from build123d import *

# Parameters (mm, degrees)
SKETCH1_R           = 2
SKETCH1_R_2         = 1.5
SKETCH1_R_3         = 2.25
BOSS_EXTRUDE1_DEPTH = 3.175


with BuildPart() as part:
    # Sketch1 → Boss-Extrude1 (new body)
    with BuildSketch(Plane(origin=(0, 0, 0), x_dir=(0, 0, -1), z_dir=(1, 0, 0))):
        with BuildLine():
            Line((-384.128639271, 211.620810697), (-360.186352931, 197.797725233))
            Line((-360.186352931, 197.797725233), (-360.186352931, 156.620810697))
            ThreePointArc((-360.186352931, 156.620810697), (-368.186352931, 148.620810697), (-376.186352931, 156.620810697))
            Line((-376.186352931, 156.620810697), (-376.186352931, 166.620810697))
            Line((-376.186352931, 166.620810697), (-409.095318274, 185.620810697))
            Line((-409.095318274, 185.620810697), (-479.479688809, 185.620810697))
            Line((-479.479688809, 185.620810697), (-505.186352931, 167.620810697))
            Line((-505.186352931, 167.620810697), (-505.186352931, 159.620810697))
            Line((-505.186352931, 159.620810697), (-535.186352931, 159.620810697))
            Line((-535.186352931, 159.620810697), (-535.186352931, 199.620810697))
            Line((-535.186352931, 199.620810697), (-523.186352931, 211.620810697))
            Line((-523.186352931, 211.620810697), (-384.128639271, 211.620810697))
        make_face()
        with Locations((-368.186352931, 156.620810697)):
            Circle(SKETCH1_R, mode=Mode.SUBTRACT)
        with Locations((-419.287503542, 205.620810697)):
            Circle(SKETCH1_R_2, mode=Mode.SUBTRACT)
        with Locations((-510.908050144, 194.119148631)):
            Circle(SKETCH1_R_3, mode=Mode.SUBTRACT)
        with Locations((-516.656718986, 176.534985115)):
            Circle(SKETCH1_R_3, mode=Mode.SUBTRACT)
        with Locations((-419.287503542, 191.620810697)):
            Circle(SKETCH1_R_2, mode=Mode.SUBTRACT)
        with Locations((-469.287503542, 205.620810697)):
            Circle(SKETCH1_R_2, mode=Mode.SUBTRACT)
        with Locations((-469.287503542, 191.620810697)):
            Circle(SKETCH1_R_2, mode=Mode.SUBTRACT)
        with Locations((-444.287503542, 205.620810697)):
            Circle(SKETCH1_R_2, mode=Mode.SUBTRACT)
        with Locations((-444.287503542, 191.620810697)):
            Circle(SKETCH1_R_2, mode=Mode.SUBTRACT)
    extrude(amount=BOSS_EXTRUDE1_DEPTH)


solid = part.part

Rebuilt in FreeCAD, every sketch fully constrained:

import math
import FreeCAD as App
import Part
import Sketcher

V = App.Vector
Q = App.Units.Quantity

doc = App.newDocument("Part")
params = doc.addObject("Spreadsheet::Sheet", "Params")
for row, (alias, value) in enumerate([
    ("sketch1_diameter", "4 mm"),
    ("sketch1_diameter2", "3 mm"),
    ("sketch1_radius", "8 mm"),
    ("sketch1_diameter3", "4.5 mm"),
    ("sketch1_width", "40 mm"),
    ("pad1_length", "3.175 mm"),
], start=1):
    params.set(f"A{row}", alias)
    params.set(f"B{row}", "=" + value)
    params.setAlias(f"B{row}", alias)

body = doc.addObject("PartDesign::Body", "Body")

sketch1 = body.newObject("Sketcher::SketchObject", "Sketch")
sketch1.AttachmentSupport = (doc.getObject("YZ_Plane"), [""])
sketch1.MapMode = "FlatFace"
sketch1.addGeometry([
    Part.LineSegment(V(197.797725, 360.186353, 0), V(211.620811, 384.128639, 0)),
    Part.LineSegment(V(211.620811, 384.128639, 0), V(211.620811, 523.186353, 0)),
    Part.LineSegment(V(211.620811, 523.186353, 0), V(199.620811, 535.186353, 0)),
    Part.LineSegment(V(199.620811, 535.186353, 0), V(159.620811, 535.186353, 0)),
    Part.LineSegment(V(159.620811, 535.186353, 0), V(159.620811, 505.186353, 0)),
    Part.LineSegment(V(159.620811, 505.186353, 0), V(167.620811, 505.186353, 0)),
    Part.LineSegment(V(167.620811, 505.186353, 0), V(185.620811, 479.479689, 0)),
    Part.LineSegment(V(185.620811, 479.479689, 0), V(185.620811, 409.095318, 0)),
    Part.LineSegment(V(185.620811, 409.095318, 0), V(166.620811, 376.186353, 0)),
    Part.LineSegment(V(166.620811, 376.186353, 0), V(156.620811, 376.186353, 0)),
    Part.ArcOfCircle(Part.Circle(V(156.620811, 368.186353, 0), V(0, 0, 1), 8), math.radians(90), math.radians(270)),
    Part.LineSegment(V(156.620811, 360.186353, 0), V(197.797725, 360.186353, 0)),
    Part.Circle(V(156.620811, 368.186353, 0), V(0, 0, 1), 2),
    Part.Circle(V(176.534985, 516.656719, 0), V(0, 0, 1), 2.25),
    Part.Circle(V(191.620811, 419.287504, 0), V(0, 0, 1), 1.5),
    Part.Circle(V(205.620811, 419.287504, 0), V(0, 0, 1), 1.5),
    Part.Circle(V(191.620811, 444.287504, 0), V(0, 0, 1), 1.5),
    Part.Circle(V(191.620811, 469.287504, 0), V(0, 0, 1), 1.5),
    Part.Circle(V(205.620811, 444.287504, 0), V(0, 0, 1), 1.5),
    Part.Circle(V(205.620811, 469.287504, 0), V(0, 0, 1), 1.5),
    Part.Circle(V(194.119149, 510.90805, 0), V(0, 0, 1), 2.25),
], False)
sketch1.addConstraint([
    Sketcher.Constraint("Coincident", 0, 2, 1, 1),
    Sketcher.Constraint("Coincident", 1, 2, 2, 1),
    Sketcher.Constraint("Coincident", 2, 2, 3, 1),
    Sketcher.Constraint("Coincident", 3, 2, 4, 1),
    Sketcher.Constraint("Coincident", 4, 2, 5, 1),
    Sketcher.Constraint("Coincident", 5, 2, 6, 1),
    Sketcher.Constraint("Coincident", 6, 2, 7, 1),
    Sketcher.Constraint("Coincident", 7, 2, 8, 1),
    Sketcher.Constraint("Coincident", 8, 2, 9, 1),
    Sketcher.Constraint("Tangent", 9, 2, 10, 1),
    Sketcher.Constraint("Tangent", 10, 2, 11, 1),
    Sketcher.Constraint("Coincident", 11, 2, 0, 1),
    Sketcher.Constraint("Vertical", 1),
    Sketcher.Constraint("Horizontal", 3),
    Sketcher.Constraint("Vertical", 4),
    Sketcher.Constraint("Horizontal", 5),
    Sketcher.Constraint("Vertical", 7),
    Sketcher.Constraint("Horizontal", 9),
    Sketcher.Constraint("Horizontal", 11),
    Sketcher.Constraint("Coincident", 12, 3, 10, 3),
    Sketcher.Constraint("Equal", 14, 15),
    Sketcher.Constraint("Equal", 15, 16),
    Sketcher.Constraint("Equal", 16, 17),
    Sketcher.Constraint("Equal", 17, 18),
    Sketcher.Constraint("Equal", 18, 19),
    Sketcher.Constraint("Equal", 13, 20),
    Sketcher.Constraint("Parallel", 0, 8),
    Sketcher.Constraint("Horizontal", 14, 3, 15, 3),
    Sketcher.Constraint("Horizontal", 16, 3, 18, 3),
    Sketcher.Constraint("Horizontal", 17, 3, 19, 3),
    Sketcher.Constraint("Vertical", 14, 3, 16, 3),
    Sketcher.Constraint("Vertical", 16, 3, 17, 3),
    Sketcher.Constraint("Vertical", 15, 3, 18, 3),
    Sketcher.Constraint("Vertical", 18, 3, 19, 3),
    Sketcher.Constraint("Diameter", 12, Q("4 mm")),
    Sketcher.Constraint("Diameter", 14, Q("3 mm")),
    Sketcher.Constraint("Radius", 10, Q("8 mm")),
    Sketcher.Constraint("Diameter", 13, Q("4.5 mm")),
    Sketcher.Constraint("DistanceX", 3, 2, 3, 1, Q("40 mm")),
    Sketcher.Constraint("DistanceX", 5, 1, 5, 2, Q("8 mm")),
    Sketcher.Constraint("DistanceX", 9, 2, 9, 1, Q("10 mm")),
    Sketcher.Constraint("DistanceY", 4, 2, 4, 1, Q("30 mm")),
    Sketcher.Constraint("Angle", 0, Q("60 deg")),
    Sketcher.Constraint("Angle", 2, Q("135 deg")),
    Sketcher.Constraint("Angle", 6, Q("-55 deg")),
    Sketcher.Constraint("Distance", 8, Q("38 mm")),
    Sketcher.Constraint("DistanceX", 10, 3, 14, 3, Q("35 mm")),
    Sketcher.Constraint("DistanceX", 14, 3, 15, 3, Q("14 mm")),
    Sketcher.Constraint("DistanceY", 14, 3, 16, 3, Q("25 mm")),
    Sketcher.Constraint("DistanceY", 16, 3, 17, 3, Q("25 mm")),
    Sketcher.Constraint("DistanceX", 15, 3, 0, 2, Q("6 mm")),
    Sketcher.Constraint("DistanceX", 2, 2, 1, 2, Q("12 mm")),
    Sketcher.Constraint("DistanceY", 7, 2, 7, 1, Q("70.384371 mm")),
    Sketcher.Constraint("Distance", 0, Q("27.646171 mm")),
    Sketcher.Constraint("DistanceX", -1, 1, 10, 3, Q("156.620811 mm")),
    Sketcher.Constraint("DistanceY", -1, 1, 13, 3, Q("516.656719 mm")),
    Sketcher.Constraint("DistanceX", -1, 1, 20, 3, Q("194.119149 mm")),
    Sketcher.Constraint("DistanceY", -1, 1, 20, 3, Q("510.90805 mm")),
    Sketcher.Constraint("DistanceY", -1, 1, 0, 2, Q("384.128639 mm")),
    Sketcher.Constraint("DistanceY", 10, 3, 14, 3, Q("51.101151 mm")),
    Sketcher.Constraint("DistanceX", -1, 1, 13, 3, Q("176.534985 mm")),
])
sketch1.setExpression("Constraints[34]", "Params.sketch1_diameter")
sketch1.setExpression("Constraints[35]", "Params.sketch1_diameter2")
sketch1.setExpression("Constraints[36]", "Params.sketch1_radius")
sketch1.setExpression("Constraints[37]", "Params.sketch1_diameter3")
sketch1.setExpression("Constraints[38]", "Params.sketch1_width")
pad1 = body.newObject("PartDesign::Pad", "Pad")
pad1.Profile = sketch1
pad1.setExpression("Length", "Params.pad1_length")

doc.recompute()
